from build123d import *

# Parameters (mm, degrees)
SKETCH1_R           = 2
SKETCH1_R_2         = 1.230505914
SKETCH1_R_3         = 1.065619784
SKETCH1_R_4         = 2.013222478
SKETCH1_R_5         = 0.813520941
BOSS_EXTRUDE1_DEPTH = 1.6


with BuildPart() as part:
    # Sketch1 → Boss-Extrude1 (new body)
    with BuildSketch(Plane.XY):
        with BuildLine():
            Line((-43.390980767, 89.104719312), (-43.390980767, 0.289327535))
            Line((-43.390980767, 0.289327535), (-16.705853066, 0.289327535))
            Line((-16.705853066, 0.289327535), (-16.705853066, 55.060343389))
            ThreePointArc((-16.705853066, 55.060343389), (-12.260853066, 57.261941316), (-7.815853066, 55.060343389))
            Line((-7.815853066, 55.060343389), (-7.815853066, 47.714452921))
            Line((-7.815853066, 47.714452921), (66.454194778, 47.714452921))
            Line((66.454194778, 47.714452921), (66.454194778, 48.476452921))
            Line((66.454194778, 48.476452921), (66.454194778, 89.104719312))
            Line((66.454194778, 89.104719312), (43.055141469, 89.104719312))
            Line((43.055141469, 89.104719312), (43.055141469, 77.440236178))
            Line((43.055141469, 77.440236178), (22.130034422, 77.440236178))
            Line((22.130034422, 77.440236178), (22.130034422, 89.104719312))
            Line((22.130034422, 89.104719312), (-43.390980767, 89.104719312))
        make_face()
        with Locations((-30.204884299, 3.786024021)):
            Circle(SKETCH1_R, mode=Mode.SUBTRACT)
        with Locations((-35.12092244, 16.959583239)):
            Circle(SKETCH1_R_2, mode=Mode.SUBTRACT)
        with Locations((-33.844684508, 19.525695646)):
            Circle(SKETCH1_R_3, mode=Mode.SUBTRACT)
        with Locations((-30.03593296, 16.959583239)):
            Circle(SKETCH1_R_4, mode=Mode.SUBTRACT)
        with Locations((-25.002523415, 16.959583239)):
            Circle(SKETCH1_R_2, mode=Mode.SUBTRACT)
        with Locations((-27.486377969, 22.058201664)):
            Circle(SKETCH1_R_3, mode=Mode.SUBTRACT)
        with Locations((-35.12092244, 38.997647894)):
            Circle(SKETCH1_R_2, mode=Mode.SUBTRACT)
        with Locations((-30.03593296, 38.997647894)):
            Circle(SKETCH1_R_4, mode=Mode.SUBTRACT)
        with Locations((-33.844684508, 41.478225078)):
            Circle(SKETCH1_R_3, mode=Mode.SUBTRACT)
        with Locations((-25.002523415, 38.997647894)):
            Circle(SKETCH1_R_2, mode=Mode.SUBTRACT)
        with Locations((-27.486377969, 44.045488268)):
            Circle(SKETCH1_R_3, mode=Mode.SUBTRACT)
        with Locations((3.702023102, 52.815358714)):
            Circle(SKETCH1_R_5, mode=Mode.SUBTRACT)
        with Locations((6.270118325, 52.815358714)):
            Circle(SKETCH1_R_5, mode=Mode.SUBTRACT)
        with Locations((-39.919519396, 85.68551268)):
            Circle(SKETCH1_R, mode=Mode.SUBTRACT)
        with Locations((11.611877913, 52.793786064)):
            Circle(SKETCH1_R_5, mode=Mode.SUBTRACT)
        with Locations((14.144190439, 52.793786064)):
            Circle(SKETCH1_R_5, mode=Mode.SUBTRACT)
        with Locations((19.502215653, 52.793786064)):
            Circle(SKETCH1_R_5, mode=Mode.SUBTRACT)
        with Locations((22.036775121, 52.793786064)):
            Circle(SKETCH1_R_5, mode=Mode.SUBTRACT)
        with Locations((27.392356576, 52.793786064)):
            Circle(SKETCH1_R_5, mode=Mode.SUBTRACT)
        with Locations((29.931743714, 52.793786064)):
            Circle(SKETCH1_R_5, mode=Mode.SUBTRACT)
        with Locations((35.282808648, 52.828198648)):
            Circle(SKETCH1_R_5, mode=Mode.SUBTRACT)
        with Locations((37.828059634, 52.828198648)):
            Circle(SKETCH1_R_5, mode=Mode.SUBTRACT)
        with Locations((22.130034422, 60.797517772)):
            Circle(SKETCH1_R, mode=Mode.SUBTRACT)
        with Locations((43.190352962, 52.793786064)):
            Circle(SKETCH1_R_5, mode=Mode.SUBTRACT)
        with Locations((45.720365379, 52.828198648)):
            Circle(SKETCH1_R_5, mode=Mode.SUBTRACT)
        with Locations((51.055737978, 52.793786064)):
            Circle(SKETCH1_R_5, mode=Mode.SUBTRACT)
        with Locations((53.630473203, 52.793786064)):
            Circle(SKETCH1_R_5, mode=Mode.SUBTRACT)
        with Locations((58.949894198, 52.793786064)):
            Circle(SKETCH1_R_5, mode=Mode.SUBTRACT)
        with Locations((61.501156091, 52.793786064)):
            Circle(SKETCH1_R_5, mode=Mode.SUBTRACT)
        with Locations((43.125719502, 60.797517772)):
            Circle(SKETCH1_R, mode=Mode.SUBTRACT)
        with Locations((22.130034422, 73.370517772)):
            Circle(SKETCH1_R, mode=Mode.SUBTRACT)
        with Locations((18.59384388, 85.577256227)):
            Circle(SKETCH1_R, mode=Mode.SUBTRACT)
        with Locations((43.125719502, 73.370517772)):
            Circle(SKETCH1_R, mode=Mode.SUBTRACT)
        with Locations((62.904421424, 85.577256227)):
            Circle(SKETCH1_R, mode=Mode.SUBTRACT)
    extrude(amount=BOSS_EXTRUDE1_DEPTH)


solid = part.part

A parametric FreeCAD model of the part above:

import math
import FreeCAD as App
import Part
import Sketcher
from FreeCAD import Vector

doc = App.newDocument("Part")
body = doc.addObject("PartDesign::Body", "Body")

# Sketch on XY plane
sketch1 = body.newObject("Sketcher::SketchObject", "Sketch")
sketch1.AttachmentSupport = (doc.getObject("XY_Plane"), [""])
sketch1.MapMode = "FlatFace"
sketch1.addGeometry(Part.LineSegment(Vector(-43.4, 89.1, 0), Vector(-43.4, 0.3, 0)), False)
sketch1.addGeometry(Part.LineSegment(Vector(-43.4, 0.3, 0), Vector(-16.7, 0.3, 0)), False)
sketch1.addGeometry(Part.LineSegment(Vector(-16.7, 0.3, 0), Vector(-16.7, 55.1, 0)), False)
sketch1.addGeometry(Part.ArcOfCircle(Part.Circle(Vector(-12.3, 51.7, 0), Vector(0, 0, 1), 5.6), math.radians(37), math.radians(143)), False)
sketch1.addGeometry(Part.LineSegment(Vector(-7.8, 55.1, 0), Vector(-7.8, 47.7, 0)), False)
sketch1.addGeometry(Part.LineSegment(Vector(-7.8, 47.7, 0), Vector(66.5, 47.7, 0)), False)
sketch1.addGeometry(Part.LineSegment(Vector(66.5, 47.7, 0), Vector(66.5, 89.1, 0)), False)
sketch1.addGeometry(Part.LineSegment(Vector(66.5, 89.1, 0), Vector(43.1, 89.1, 0)), False)
sketch1.addGeometry(Part.LineSegment(Vector(43.1, 89.1, 0), Vector(43.1, 77.4, 0)), False)
sketch1.addGeometry(Part.LineSegment(Vector(43.1, 77.4, 0), Vector(22.1, 77.4, 0)), False)
sketch1.addGeometry(Part.LineSegment(Vector(22.1, 77.4, 0), Vector(22.1, 89.1, 0)), False)
sketch1.addGeometry(Part.LineSegment(Vector(22.1, 89.1, 0), Vector(-43.4, 89.1, 0)), False)
sketch1.addGeometry(Part.Circle(Vector(-30.2, 3.8, 0), Vector(0, 0, 1), 2), False)
sketch1.addGeometry(Part.Circle(Vector(-35.1, 17, 0), Vector(0, 0, 1), 1.2), False)
sketch1.addGeometry(Part.Circle(Vector(-30, 17, 0), Vector(0, 0, 1), 2), False)
sketch1.addGeometry(Part.Circle(Vector(-33.8, 19.5, 0), Vector(0, 0, 1), 1.1), False)
sketch1.addGeometry(Part.Circle(Vector(-25, 17, 0), Vector(0, 0, 1), 1.2), False)
sketch1.addGeometry(Part.Circle(Vector(-27.5, 22.1, 0), Vector(0, 0, 1), 1.1), False)
sketch1.addGeometry(Part.Circle(Vector(-35.1, 39, 0), Vector(0, 0, 1), 1.2), False)
sketch1.addGeometry(Part.Circle(Vector(-30, 39, 0), Vector(0, 0, 1), 2), False)
sketch1.addGeometry(Part.Circle(Vector(-33.8, 41.5, 0), Vector(0, 0, 1), 1.1), False)
sketch1.addGeometry(Part.Circle(Vector(-25, 39, 0), Vector(0, 0, 1), 1.2), False)
sketch1.addGeometry(Part.Circle(Vector(-27.5, 44, 0), Vector(0, 0, 1), 1.1), False)
sketch1.addGeometry(Part.Circle(Vector(3.7, 52.8, 0), Vector(0, 0, 1), 0.8), False)
sketch1.addGeometry(Part.Circle(Vector(6.3, 52.8, 0), Vector(0, 0, 1), 0.8), False)
sketch1.addGeometry(Part.Circle(Vector(-39.9, 85.7, 0), Vector(0, 0, 1), 2), False)
sketch1.addGeometry(Part.Circle(Vector(11.6, 52.8, 0), Vector(0, 0, 1), 0.8), False)
sketch1.addGeometry(Part.Circle(Vector(14.1, 52.8, 0), Vector(0, 0, 1), 0.8), False)
sketch1.addGeometry(Part.Circle(Vector(19.5, 52.8, 0), Vector(0, 0, 1), 0.8), False)
sketch1.addGeometry(Part.Circle(Vector(22, 52.8, 0), Vector(0, 0, 1), 0.8), False)
sketch1.addGeometry(Part.Circle(Vector(27.4, 52.8, 0), Vector(0, 0, 1), 0.8), False)
sketch1.addGeometry(Part.Circle(Vector(29.9, 52.8, 0), Vector(0, 0, 1), 0.8), False)
sketch1.addGeometry(Part.Circle(Vector(35.3, 52.8, 0), Vector(0, 0, 1), 0.8), False)
sketch1.addGeometry(Part.Circle(Vector(37.8, 52.8, 0), Vector(0, 0, 1), 0.8), False)
sketch1.addGeometry(Part.Circle(Vector(22.1, 60.8, 0), Vector(0, 0, 1), 2), False)
sketch1.addGeometry(Part.Circle(Vector(43.2, 52.8, 0), Vector(0, 0, 1), 0.8), False)
sketch1.addGeometry(Part.Circle(Vector(45.7, 52.8, 0), Vector(0, 0, 1), 0.8), False)
sketch1.addGeometry(Part.Circle(Vector(51.1, 52.8, 0), Vector(0, 0, 1), 0.8), False)
sketch1.addGeometry(Part.Circle(Vector(53.6, 52.8, 0), Vector(0, 0, 1), 0.8), False)
sketch1.addGeometry(Part.Circle(Vector(58.9, 52.8, 0), Vector(0, 0, 1), 0.8), False)
sketch1.addGeometry(Part.Circle(Vector(61.5, 52.8, 0), Vector(0, 0, 1), 0.8), False)
sketch1.addGeometry(Part.Circle(Vector(43.1, 60.8, 0), Vector(0, 0, 1), 2), False)
sketch1.addGeometry(Part.Circle(Vector(22.1, 73.4, 0), Vector(0, 0, 1), 2), False)
sketch1.addGeometry(Part.Circle(Vector(18.6, 85.6, 0), Vector(0, 0, 1), 2), False)
sketch1.addGeometry(Part.Circle(Vector(43.1, 73.4, 0), Vector(0, 0, 1), 2), False)
sketch1.addGeometry(Part.Circle(Vector(62.9, 85.6, 0), Vector(0, 0, 1), 2), False)
sketch1.addConstraint(Sketcher.Constraint("Coincident", 0, 2, 1, 1))
sketch1.addConstraint(Sketcher.Constraint("Coincident", 1, 2, 2, 1))
sketch1.addConstraint(Sketcher.Constraint("Coincident", 2, 2, 3, 2))
sketch1.addConstraint(Sketcher.Constraint("Coincident", 3, 1, 4, 1))
sketch1.addConstraint(Sketcher.Constraint("Coincident", 4, 2, 5, 1))
sketch1.addConstraint(Sketcher.Constraint("Coincident", 5, 2, 6, 1))
sketch1.addConstraint(Sketcher.Constraint("Coincident", 6, 2, 7, 1))
sketch1.addConstraint(Sketcher.Constraint("Coincident", 7, 2, 8, 1))
sketch1.addConstraint(Sketcher.Constraint("Coincident", 8, 2, 9, 1))
sketch1.addConstraint(Sketcher.Constraint("Coincident", 9, 2, 10, 1))
sketch1.addConstraint(Sketcher.Constraint("Coincident", 10, 2, 11, 1))
sketch1.addConstraint(Sketcher.Constraint("Coincident", 11, 2, 0, 1))
sketch1.addConstraint(Sketcher.Constraint("Vertical", 0))
sketch1.addConstraint(Sketcher.Constraint("Horizontal", 1))
sketch1.addConstraint(Sketcher.Constraint("Vertical", 2))
sketch1.addConstraint(Sketcher.Constraint("Vertical", 4))
sketch1.addConstraint(Sketcher.Constraint("Horizontal", 5))
sketch1.addConstraint(Sketcher.Constraint("Vertical", 6))
sketch1.addConstraint(Sketcher.Constraint("Horizontal", 7))
sketch1.addConstraint(Sketcher.Constraint("Vertical", 8))
sketch1.addConstraint(Sketcher.Constraint("Horizontal", 9))
sketch1.addConstraint(Sketcher.Constraint("Vertical", 10))
sketch1.addConstraint(Sketcher.Constraint("Horizontal", 11))
sketch1.addConstraint(Sketcher.Constraint("Equal", 13, 16))
sketch1.addConstraint(Sketcher.Constraint("Equal", 15, 17))
sketch1.addConstraint(Sketcher.Constraint("Equal", 16, 18))
sketch1.addConstraint(Sketcher.Constraint("Equal", 14, 19))
sketch1.addConstraint(Sketcher.Constraint("Equal", 17, 20))
sketch1.addConstraint(Sketcher.Constraint("Equal", 18, 21))
sketch1.addConstraint(Sketcher.Constraint("Equal", 20, 22))
sketch1.addConstraint(Sketcher.Constraint("Equal", 23, 24))
sketch1.addConstraint(Sketcher.Constraint("Equal", 12, 25))
sketch1.addConstraint(Sketcher.Constraint("Equal", 24, 26))
sketch1.addConstraint(Sketcher.Constraint("Equal", 26, 27))
sketch1.addConstraint(Sketcher.Constraint("Equal", 27, 28))
sketch1.addConstraint(Sketcher.Constraint("Equal", 28, 29))
sketch1.addConstraint(Sketcher.Constraint("Equal", 29, 30))
sketch1.addConstraint(Sketcher.Constraint("Equal", 30, 31))
sketch1.addConstraint(Sketcher.Constraint("Equal", 31, 32))
sketch1.addConstraint(Sketcher.Constraint("Equal", 32, 33))
sketch1.addConstraint(Sketcher.Constraint("Equal", 25, 34))
sketch1.addConstraint(Sketcher.Constraint("Equal", 33, 35))
sketch1.addConstraint(Sketcher.Constraint("Equal", 35, 36))
sketch1.addConstraint(Sketcher.Constraint("Equal", 36, 37))
sketch1.addConstraint(Sketcher.Constraint("Equal", 37, 38))
sketch1.addConstraint(Sketcher.Constraint("Equal", 38, 39))
sketch1.addConstraint(Sketcher.Constraint("Equal", 39, 40))
sketch1.addConstraint(Sketcher.Constraint("Equal", 34, 41))
sketch1.addConstraint(Sketcher.Constraint("Equal", 41, 42))
sketch1.addConstraint(Sketcher.Constraint("Equal", 42, 43))
sketch1.addConstraint(Sketcher.Constraint("Equal", 43, 44))
sketch1.addConstraint(Sketcher.Constraint("Equal", 44, 45))
sketch1.addConstraint(Sketcher.Constraint("Horizontal", 13, 3, 14, 3))
sketch1.addConstraint(Sketcher.Constraint("Horizontal", 14, 3, 16, 3))
sketch1.addConstraint(Sketcher.Constraint("Horizontal", 18, 3, 19, 3))
sketch1.addConstraint(Sketcher.Constraint("Horizontal", 19, 3, 21, 3))
sketch1.addConstraint(Sketcher.Constraint("Horizontal", 23, 3, 24, 3))
sketch1.addConstraint(Sketcher.Constraint("Horizontal", 26, 3, 27, 3))
sketch1.addConstraint(Sketcher.Constraint("Horizontal", 27, 3, 28, 3))
sketch1.addConstraint(Sketcher.Constraint("Horizontal", 28, 3, 29, 3))
sketch1.addConstraint(Sketcher.Constraint("Horizontal", 29, 3, 30, 3))
sketch1.addConstraint(Sketcher.Constraint("Horizontal", 30, 3, 31, 3))
sketch1.addConstraint(Sketcher.Constraint("Horizontal", 32, 3, 33, 3))
sketch1.addConstraint(Sketcher.Constraint("Horizontal", 31, 3, 35, 3))
sketch1.addConstraint(Sketcher.Constraint("Horizontal", 33, 3, 36, 3))
sketch1.addConstraint(Sketcher.Constraint("Horizontal", 35, 3, 37, 3))
sketch1.addConstraint(Sketcher.Constraint("Horizontal", 37, 3, 38, 3))
sketch1.addConstraint(Sketcher.Constraint("Horizontal", 38, 3, 39, 3))
sketch1.addConstraint(Sketcher.Constraint("Horizontal", 39, 3, 40, 3))
sketch1.addConstraint(Sketcher.Constraint("Horizontal", 34, 3, 41, 3))
sketch1.addConstraint(Sketcher.Constraint("Horizontal", 42, 3, 44, 3))
sketch1.addConstraint(Sketcher.Constraint("Horizontal", 43, 3, 45, 3))
sketch1.addConstraint(Sketcher.Constraint("Horizontal", 2, 2, 3, 1))
sketch1.addConstraint(Sketcher.Constraint("Horizontal", 7, 2, 10, 2))
sketch1.addConstraint(Sketcher.Constraint("Vertical", 13, 3, 18, 3))
sketch1.addConstraint(Sketcher.Constraint("Vertical", 14, 3, 19, 3))
sketch1.addConstraint(Sketcher.Constraint("Vertical", 15, 3, 20, 3))
sketch1.addConstraint(Sketcher.Constraint("Vertical", 16, 3, 21, 3))
sketch1.addConstraint(Sketcher.Constraint("Vertical", 17, 3, 22, 3))
sketch1.addConstraint(Sketcher.Constraint("Vertical", 34, 3, 42, 3))
sketch1.addConstraint(Sketcher.Constraint("Vertical", 41, 3, 44, 3))
sketch1.addConstraint(Sketcher.Constraint("Vertical", 42, 3, 9, 2))
sketch1.addConstraint(Sketcher.Constraint("Diameter", 12, 4.0))
sketch1.addConstraint(Sketcher.Constraint("Radius", 3, 5.588))
sketch1.addConstraint(Sketcher.Constraint("Diameter", 13, 2.461012))
sketch1.addConstraint(Sketcher.Constraint("Diameter", 15, 2.13124))
sketch1.addConstraint(Sketcher.Constraint("Diameter", 23, 1.627042))
sketch1.addConstraint(Sketcher.Constraint("DistanceX", 2, 2, 3, 1, 8.89))
sketch1.addConstraint(Sketcher.Constraint("Diameter", 14, 4.026445))
sketch1.addConstraint(Sketcher.Constraint("DistanceY", 34, 3, 42, 3, 12.573))
sketch1.addConstraint(Sketcher.Constraint("DistanceY", 0, 2, 0, 1, 88.815392))
sketch1.addConstraint(Sketcher.Constraint("DistanceY", 4, 2, 4, 1, 7.34589))
sketch1.addConstraint(Sketcher.Constraint("DistanceY", -1, 1, 17, 3, 22.058202))
sketch1.addConstraint(Sketcher.Constraint("DistanceY", -1, 1, 32, 3, 52.828199))
sketch1.addConstraint(Sketcher.Constraint("DistanceX", 15, 3, 12, 3, 3.6398))
sketch1.addConstraint(Sketcher.Constraint("DistanceX", 13, 3, 16, 3, 10.118399))
sketch1.addConstraint(Sketcher.Constraint("DistanceX", 22, 3, 23, 3, 31.188401))
sketch1.addConstraint(Sketcher.Constraint("DistanceX", 21, 3, 26, 3, 36.614401))
sketch1.addConstraint(Sketcher.Constraint("DistanceX", 44, 3, 45, 3, 19.778702))
sketch1.addConstraint(Sketcher.Constraint("DistanceX", 39, 3, 5, 2, 7.504301))
sketch1.addConstraint(Sketcher.Constraint("DistanceY", 44, 3, 6, 2, 15.734202))
sketch1.addConstraint(Sketcher.Constraint("DistanceX", 1, 1, 1, 2, 26.685128))
sketch1.addConstraint(Sketcher.Constraint("DistanceX", 5, 1, 5, 2, 74.270048))
sketch1.addConstraint(Sketcher.Constraint("DistanceX", 7, 2, 7, 1, 23.399053))
sketch1.addConstraint(Sketcher.Constraint("DistanceX", 9, 2, 9, 1, 20.925107))
sketch1.addConstraint(Sketcher.Constraint("DistanceY", 2, 1, 2, 2, 54.771016))
sketch1.addConstraint(Sketcher.Constraint("DistanceY", 8, 2, 8, 1, 11.664483))
sketch1.addConstraint(Sketcher.Constraint("DistanceY", -1, 1, 3, 3, 51.673941))
sketch1.addConstraint(Sketcher.Constraint("DistanceY", -1, 1, 22, 3, 44.045488))
sketch1.addConstraint(Sketcher.Constraint("DistanceY", -1, 1, 23, 3, 52.815359))
sketch1.addConstraint(Sketcher.Constraint("DistanceX", -1, 1, 24, 3, 6.270118))
sketch1.addConstraint(Sketcher.Constraint("DistanceX", 25, 3, -1, 1, 39.919519))
sketch1.addConstraint(Sketcher.Constraint("DistanceX", -1, 1, 27, 3, 14.14419))
sketch1.addConstraint(Sketcher.Constraint("DistanceX", -1, 1, 32, 3, 35.282809))
sketch1.addConstraint(Sketcher.Constraint("DistanceX", -1, 1, 33, 3, 37.82806))
sketch1.addConstraint(Sketcher.Constraint("DistanceX", -1, 1, 41, 3, 43.12572))
sketch1.addConstraint(Sketcher.Constraint("DistanceX", 0, 2, -1, 1, 43.390981))
sketch1.addConstraint(Sketcher.Constraint("DistanceX", 12, 3, 3, 3, 17.944031))
sketch1.addConstraint(Sketcher.Constraint("DistanceX", 13, 3, 12, 3, 4.916038))
sketch1.addConstraint(Sketcher.Constraint("DistanceY", 12, 3, 13, 3, 13.173559))
sketch1.addConstraint(Sketcher.Constraint("DistanceY", 13, 3, 3, 3, 34.714358))
sketch1.addConstraint(Sketcher.Constraint("DistanceX", 13, 3, 14, 3, 5.084989))
sketch1.addConstraint(Sketcher.Constraint("DistanceY", 12, 3, 15, 3, 15.739672))
sketch1.addConstraint(Sketcher.Constraint("DistanceY", 15, 3, 20, 3, 21.952529))
sketch1.addConstraint(Sketcher.Constraint("DistanceY", 21, 3, 22, 3, 5.04784))
sketch1.addConstraint(Sketcher.Constraint("DistanceX", 25, 3, 22, 3, 12.433141))
sketch1.addConstraint(Sketcher.Constraint("DistanceY", 3, 3, 25, 3, 34.011571))
sketch1.addConstraint(Sketcher.Constraint("DistanceY", 21, 3, 26, 3, 13.796138))
sketch1.addConstraint(Sketcher.Constraint("DistanceX", 3, 3, 28, 3, 31.763069))
sketch1.addConstraint(Sketcher.Constraint("DistanceX", 28, 3, 29, 3, 2.534559))
sketch1.addConstraint(Sketcher.Constraint("DistanceX", 29, 3, 30, 3, 5.355581))
sketch1.addConstraint(Sketcher.Constraint("DistanceX", 29, 3, 31, 3, 7.894969))
sketch1.addConstraint(Sketcher.Constraint("DistanceX", 31, 3, 35, 3, 13.258609))
sketch1.addConstraint(Sketcher.Constraint("DistanceX", 31, 3, 36, 3, 15.788622))
sketch1.addConstraint(Sketcher.Constraint("DistanceX", 33, 3, 37, 3, 13.227678))
sketch1.addConstraint(Sketcher.Constraint("DistanceX", 35, 3, 38, 3, 10.44012))
sketch1.addConstraint(Sketcher.Constraint("DistanceX", 39, 3, 40, 3, 2.551262))
sketch1.addConstraint(Sketcher.Constraint("DistanceX", 43, 3, 42, 3, 3.536191))
sketch1.addConstraint(Sketcher.Constraint("DistanceY", 42, 3, 43, 3, 12.206738))
pad1 = body.newObject("PartDesign::Pad", "Pad")
pad1.Profile = sketch1
pad1.Length = 1.6

doc.recompute()
